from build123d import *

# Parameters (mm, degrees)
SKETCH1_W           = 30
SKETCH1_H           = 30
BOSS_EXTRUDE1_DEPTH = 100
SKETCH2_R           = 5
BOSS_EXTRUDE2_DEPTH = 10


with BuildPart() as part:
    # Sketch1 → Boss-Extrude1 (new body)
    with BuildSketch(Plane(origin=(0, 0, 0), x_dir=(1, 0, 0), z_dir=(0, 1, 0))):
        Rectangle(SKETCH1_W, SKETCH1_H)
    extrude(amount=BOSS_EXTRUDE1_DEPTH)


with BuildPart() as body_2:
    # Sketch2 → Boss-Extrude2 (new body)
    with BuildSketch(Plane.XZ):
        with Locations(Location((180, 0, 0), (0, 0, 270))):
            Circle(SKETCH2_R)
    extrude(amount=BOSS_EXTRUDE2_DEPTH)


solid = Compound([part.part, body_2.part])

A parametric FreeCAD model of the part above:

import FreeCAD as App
import Part
import Sketcher
from FreeCAD import Vector


def add_polygon(sketch, points):
    """Adds a closed chain of lines whose ends are joined by coincident constraints."""
    first, n = sketch.GeometryCount, len(points)
    for a, b in zip(points, points[1:] + points[:1]):
        sketch.addGeometry(Part.LineSegment(App.Vector(*a, 0), App.Vector(*b, 0)), False)
    for i in range(n):
        sketch.addConstraint(Sketcher.Constraint("Coincident", first + i, 2, first + (i + 1) % n, 1))

doc = App.newDocument("Part")
body = doc.addObject("PartDesign::Body", "Body")

sketch1 = body.newObject("Sketcher::SketchObject", "Sketch")
sketch1.AttachmentSupport = (doc.getObject("XZ_Plane"), [""])
sketch1.MapMode = "FlatFace"
add_polygon(sketch1, [(-15, -15), (-15, 15), (15, 15), (15, -15)])
sketch1.addConstraint([
    Sketcher.Constraint("Vertical", 0),
    Sketcher.Constraint("Horizontal", 1),
    Sketcher.Constraint("Vertical", 2),
    Sketcher.Constraint("Horizontal", 3),
    Sketcher.Constraint("Symmetric", 0, 2, 2, 2, -1, 1),
    Sketcher.Constraint("Equal", 3, 0),
    Sketcher.Constraint("DistanceX", 1, 1, 1, 2, 30.0),
])
pad1 = body.newObject("PartDesign::Pad", "Pad")
pad1.Profile = sketch1
pad1.Length = 100
pad1.Reversed = True
body2 = doc.addObject("PartDesign::Body", "Body001")

sketch2 = body2.newObject("Sketcher::SketchObject", "Sketch001")
sketch2.AttachmentSupport = (doc.getObject("XZ_Plane001"), [""])
sketch2.MapMode = "FlatFace"
sketch2.addGeometry(Part.Circle(Vector(180, 0, 0), Vector(0, 0, 1), 5), False)
sketch2.addConstraint([
    Sketcher.Constraint("PointOnObject", 0, 3, -1),
    Sketcher.Constraint("Diameter", 0, 10.0),
    Sketcher.Constraint("DistanceX", -1, 1, 0, 3, 180.0),
])
pad2 = body2.newObject("PartDesign::Pad", "Pad001")
pad2.Profile = sketch2
pad2.Length = 10

doc.recompute()
